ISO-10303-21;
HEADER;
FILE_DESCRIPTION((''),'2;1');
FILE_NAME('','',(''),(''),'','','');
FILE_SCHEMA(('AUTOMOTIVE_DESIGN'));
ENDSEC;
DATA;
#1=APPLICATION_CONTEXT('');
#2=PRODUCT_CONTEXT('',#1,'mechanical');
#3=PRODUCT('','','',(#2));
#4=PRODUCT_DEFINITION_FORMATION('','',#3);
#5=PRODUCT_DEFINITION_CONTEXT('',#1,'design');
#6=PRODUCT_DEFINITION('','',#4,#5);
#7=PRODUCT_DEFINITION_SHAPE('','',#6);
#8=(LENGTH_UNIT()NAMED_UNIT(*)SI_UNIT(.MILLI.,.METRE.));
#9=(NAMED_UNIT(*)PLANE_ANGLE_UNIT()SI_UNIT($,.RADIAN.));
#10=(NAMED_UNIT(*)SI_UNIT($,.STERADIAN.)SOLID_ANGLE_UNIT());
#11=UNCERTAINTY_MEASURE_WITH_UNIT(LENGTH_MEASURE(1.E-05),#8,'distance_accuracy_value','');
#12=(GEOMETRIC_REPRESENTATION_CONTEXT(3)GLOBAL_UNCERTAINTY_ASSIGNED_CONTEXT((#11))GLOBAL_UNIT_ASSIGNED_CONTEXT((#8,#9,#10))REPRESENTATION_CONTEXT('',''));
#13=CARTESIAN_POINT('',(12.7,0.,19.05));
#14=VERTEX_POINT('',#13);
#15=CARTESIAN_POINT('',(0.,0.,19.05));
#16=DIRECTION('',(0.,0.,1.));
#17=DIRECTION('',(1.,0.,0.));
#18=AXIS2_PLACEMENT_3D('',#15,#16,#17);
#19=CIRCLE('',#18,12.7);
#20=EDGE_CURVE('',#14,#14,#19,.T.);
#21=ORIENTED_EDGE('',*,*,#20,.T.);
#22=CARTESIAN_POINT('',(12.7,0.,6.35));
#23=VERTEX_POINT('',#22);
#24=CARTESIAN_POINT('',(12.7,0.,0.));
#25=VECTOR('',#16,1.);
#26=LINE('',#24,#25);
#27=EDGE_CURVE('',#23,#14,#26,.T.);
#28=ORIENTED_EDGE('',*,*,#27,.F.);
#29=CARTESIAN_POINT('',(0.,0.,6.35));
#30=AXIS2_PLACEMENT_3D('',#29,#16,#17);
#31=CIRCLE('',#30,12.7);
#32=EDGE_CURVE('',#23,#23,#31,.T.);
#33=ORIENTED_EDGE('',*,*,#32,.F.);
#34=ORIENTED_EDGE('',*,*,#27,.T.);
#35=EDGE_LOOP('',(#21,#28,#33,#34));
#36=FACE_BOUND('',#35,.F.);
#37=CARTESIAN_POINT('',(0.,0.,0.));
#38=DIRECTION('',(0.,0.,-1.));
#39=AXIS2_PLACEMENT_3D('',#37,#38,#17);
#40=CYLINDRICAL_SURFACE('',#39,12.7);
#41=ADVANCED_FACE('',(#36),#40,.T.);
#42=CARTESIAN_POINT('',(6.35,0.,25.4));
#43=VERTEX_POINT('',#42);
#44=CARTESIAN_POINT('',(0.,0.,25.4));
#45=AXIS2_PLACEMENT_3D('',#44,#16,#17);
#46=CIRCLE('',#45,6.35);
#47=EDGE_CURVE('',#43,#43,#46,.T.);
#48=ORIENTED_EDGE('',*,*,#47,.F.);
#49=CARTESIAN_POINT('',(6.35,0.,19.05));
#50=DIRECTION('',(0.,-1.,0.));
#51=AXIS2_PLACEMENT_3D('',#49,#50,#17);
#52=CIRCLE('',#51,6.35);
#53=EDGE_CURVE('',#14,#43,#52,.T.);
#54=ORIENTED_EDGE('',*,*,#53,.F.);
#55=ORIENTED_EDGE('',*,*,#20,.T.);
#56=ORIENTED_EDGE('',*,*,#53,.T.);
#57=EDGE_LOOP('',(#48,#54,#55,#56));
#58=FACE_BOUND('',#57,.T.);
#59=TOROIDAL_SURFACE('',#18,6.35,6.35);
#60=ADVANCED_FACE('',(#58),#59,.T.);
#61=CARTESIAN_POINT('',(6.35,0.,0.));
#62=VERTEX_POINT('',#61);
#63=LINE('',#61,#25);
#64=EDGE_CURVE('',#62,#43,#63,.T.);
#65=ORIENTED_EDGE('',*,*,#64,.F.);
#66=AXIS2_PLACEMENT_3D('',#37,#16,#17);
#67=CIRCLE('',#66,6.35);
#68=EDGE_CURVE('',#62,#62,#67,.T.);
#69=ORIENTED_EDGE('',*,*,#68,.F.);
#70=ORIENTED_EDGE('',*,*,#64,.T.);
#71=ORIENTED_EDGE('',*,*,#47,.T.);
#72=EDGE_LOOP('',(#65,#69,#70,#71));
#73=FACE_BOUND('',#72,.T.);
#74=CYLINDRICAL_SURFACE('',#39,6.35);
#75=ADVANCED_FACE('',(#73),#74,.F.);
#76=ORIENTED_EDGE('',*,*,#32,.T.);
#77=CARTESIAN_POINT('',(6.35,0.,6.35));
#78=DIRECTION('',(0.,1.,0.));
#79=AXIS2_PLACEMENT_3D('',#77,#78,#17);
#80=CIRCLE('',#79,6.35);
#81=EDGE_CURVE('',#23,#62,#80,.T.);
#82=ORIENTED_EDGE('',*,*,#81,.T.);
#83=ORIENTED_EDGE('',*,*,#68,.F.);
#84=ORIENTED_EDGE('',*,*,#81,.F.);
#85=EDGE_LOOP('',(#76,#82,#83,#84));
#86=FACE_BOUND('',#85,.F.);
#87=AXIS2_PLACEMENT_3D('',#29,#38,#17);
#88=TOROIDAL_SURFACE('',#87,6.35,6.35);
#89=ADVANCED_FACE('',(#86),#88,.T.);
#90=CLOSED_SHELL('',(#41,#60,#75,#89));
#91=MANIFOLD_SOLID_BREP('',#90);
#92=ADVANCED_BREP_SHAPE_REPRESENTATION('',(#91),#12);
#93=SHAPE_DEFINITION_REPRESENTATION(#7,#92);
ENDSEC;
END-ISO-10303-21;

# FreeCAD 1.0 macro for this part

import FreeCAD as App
import Part
import Sketcher
from FreeCAD import Vector
Q = App.Units.Quantity

doc = App.newDocument("Part")
body = doc.addObject("PartDesign::Body", "Body")

sketch1 = doc.addObject("Sketcher::SketchObject", "Sketch")
body.addObject(sketch1)
sketch1.AttachmentSupport = (doc.XY_Plane, [""])
sketch1.MapMode = "FlatFace"
sketch1.addGeometry(Part.Circle(Vector(0, 0, 0), Vector(0, 0, 1), 12.7), False)
sketch1.addConstraint(Sketcher.Constraint("Coincident", 0, 3, -1, 1))
sketch1.addConstraint(Sketcher.Constraint("Diameter", 0, Q("1 in")))
pad1 = doc.addObject("PartDesign::Pad", "Pad")
body.addObject(pad1)
pad1.Profile = sketch1
pad1.Length = Q("1 in")
doc.recompute()

fillet = doc.addObject("PartDesign::Fillet", "Fillet")
body.addObject(fillet)
fillet.Base = (pad1, ["Edge1"])
fillet.UseAllEdges = True
fillet.Radius = Q("0.25 in")

sketch2 = doc.addObject("Sketcher::SketchObject", "Sketch001")
body.addObject(sketch2)
sketch2.AttachmentSupport = (doc.XY_Plane, [""])
sketch2.MapMode = "FlatFace"
sketch2.addGeometry(Part.Circle(Vector(0, 0, 0), Vector(0, 0, 1), 6.35), False)
sketch2.addConstraint(Sketcher.Constraint("Coincident", 0, 3, -1, 1))
sketch2.addConstraint(Sketcher.Constraint("Diameter", 0, Q("0.5 in")))
pocket1 = doc.addObject("PartDesign::Pocket", "Pocket")
body.addObject(pocket1)
pocket1.Profile = sketch2
pocket1.Length = Q("1 in")
pocket1.Reversed = True

doc.recompute()
